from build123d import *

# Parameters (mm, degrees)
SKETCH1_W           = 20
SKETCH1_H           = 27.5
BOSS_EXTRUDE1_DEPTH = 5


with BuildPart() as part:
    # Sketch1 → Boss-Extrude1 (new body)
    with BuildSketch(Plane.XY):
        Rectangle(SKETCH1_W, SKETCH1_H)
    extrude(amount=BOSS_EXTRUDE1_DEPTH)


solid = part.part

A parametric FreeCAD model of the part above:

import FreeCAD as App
import Part
import Sketcher
from FreeCAD import Vector
Q = App.Units.Quantity

doc = App.newDocument("Part")
body = doc.addObject("PartDesign::Body", "Body")

# Sketch on XY plane
sketch1 = doc.addObject("Sketcher::SketchObject", "Sketch")
body.addObject(sketch1)
sketch1.AttachmentSupport = (doc.XY_Plane, [""])
sketch1.MapMode = "FlatFace"
sketch1.addGeometry([
    Part.LineSegment(Vector(-10, 14, 0), Vector(-10, -14, 0)),
    Part.LineSegment(Vector(-10, -14, 0), Vector(10, -14, 0)),
    Part.LineSegment(Vector(10, -14, 0), Vector(10, 14, 0)),
    Part.LineSegment(Vector(10, 14, 0), Vector(-10, 14, 0)),
], False)
sketch1.addConstraint([
    Sketcher.Constraint("Coincident", 0, 2, 1, 1),
    Sketcher.Constraint("Coincident", 1, 2, 2, 1),
    Sketcher.Constraint("Coincident", 2, 2, 3, 1),
    Sketcher.Constraint("Coincident", 3, 2, 0, 1),
    Sketcher.Constraint("Vertical", 0),
    Sketcher.Constraint("Horizontal", 1),
    Sketcher.Constraint("Vertical", 2),
    Sketcher.Constraint("Horizontal", 3),
    Sketcher.Constraint("Symmetric", 0, 2, 2, 2, -1, 1),
    Sketcher.Constraint("DistanceX", 1, 1, 1, 2, Q("20 mm")),
    Sketcher.Constraint("DistanceY", 0, 2, 0, 1, Q("27.5 mm")),
])
pad1 = doc.addObject("PartDesign::Pad", "Pad")
body.addObject(pad1)
pad1.Profile = sketch1
pad1.Length = 5

doc.recompute()
